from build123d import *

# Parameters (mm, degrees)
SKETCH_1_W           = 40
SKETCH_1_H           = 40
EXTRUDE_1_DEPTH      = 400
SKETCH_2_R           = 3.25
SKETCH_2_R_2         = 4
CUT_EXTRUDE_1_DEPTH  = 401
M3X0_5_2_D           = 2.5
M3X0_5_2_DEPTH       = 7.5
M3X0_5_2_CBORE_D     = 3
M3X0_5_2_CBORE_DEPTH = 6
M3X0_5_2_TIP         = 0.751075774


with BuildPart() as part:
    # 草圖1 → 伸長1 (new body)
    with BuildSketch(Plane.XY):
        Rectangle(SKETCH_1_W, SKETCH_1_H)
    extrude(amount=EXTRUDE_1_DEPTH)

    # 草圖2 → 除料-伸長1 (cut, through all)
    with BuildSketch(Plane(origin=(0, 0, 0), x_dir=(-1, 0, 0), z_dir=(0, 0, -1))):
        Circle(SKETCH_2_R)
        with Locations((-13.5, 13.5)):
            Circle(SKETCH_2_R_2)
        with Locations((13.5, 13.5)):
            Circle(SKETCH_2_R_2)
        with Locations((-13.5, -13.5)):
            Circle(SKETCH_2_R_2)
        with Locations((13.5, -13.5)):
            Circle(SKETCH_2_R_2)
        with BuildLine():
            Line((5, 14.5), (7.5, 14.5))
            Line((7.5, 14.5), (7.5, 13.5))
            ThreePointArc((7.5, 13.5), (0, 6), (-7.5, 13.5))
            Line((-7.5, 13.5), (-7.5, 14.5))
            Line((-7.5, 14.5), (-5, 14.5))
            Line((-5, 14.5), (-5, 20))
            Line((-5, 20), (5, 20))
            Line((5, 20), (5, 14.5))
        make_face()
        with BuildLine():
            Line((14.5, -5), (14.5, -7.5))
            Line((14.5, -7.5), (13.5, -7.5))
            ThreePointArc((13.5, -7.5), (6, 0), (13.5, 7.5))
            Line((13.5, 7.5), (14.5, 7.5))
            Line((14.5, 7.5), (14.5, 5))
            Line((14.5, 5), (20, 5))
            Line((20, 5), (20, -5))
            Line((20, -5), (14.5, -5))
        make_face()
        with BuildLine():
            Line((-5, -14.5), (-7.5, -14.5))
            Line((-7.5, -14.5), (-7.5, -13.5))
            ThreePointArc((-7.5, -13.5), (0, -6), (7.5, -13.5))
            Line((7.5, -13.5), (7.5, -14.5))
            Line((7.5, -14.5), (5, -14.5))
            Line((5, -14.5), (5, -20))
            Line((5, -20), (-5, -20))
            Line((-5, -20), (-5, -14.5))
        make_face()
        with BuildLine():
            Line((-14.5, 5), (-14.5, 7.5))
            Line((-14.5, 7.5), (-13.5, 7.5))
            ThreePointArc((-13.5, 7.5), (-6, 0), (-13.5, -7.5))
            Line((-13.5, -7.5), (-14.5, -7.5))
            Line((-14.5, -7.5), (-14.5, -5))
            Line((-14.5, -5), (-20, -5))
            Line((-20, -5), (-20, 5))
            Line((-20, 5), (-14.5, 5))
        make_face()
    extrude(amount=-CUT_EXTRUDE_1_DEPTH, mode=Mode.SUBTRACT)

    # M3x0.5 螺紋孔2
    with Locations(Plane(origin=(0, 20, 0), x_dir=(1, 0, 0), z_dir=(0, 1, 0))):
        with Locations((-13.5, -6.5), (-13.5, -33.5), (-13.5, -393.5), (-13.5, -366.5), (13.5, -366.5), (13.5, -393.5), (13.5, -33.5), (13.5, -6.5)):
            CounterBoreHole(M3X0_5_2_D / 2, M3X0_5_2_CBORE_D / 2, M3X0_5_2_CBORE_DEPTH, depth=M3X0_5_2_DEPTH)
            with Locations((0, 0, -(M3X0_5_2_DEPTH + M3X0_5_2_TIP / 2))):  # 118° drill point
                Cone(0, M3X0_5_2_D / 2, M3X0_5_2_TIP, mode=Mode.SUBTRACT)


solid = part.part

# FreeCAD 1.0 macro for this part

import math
import FreeCAD as App
import Part
import Sketcher

V = App.Vector
Q = App.Units.Quantity

doc = App.newDocument("Part")
params = doc.addObject("Spreadsheet::Sheet", "Params")
for row, (alias, value) in enumerate([
    ("sketch1_width", "40 mm"),
    ("pad1_length", "400 mm"),
    ("sketch2_diameter", "8 mm"),
    ("sketch2_diameter2", "6.5 mm"),
    ("sketch2_radius", "7.5 mm"),
    ("sketch2_width", "10 mm"),
    ("sketch2_width2", "1 mm"),
    ("sketch3_diameter", "2.5 mm"),
    ("hole_diameter", "2.5 mm"),
    ("hole_depth", "7.5 mm"),
    ("hole_cbore_diameter", "3 mm"),
    ("hole_cbore_depth", "6 mm"),
], start=1):
    params.set(f"A{row}", alias)
    params.set(f"B{row}", "=" + value)
    params.setAlias(f"B{row}", alias)

body = doc.addObject("PartDesign::Body", "Body")

# Sketch on XY plane
sketch1 = body.newObject("Sketcher::SketchObject", "Sketch")
sketch1.AttachmentSupport = (doc.getObject("XY_Plane"), [""])
sketch1.MapMode = "FlatFace"
sketch1.addGeometry([
    Part.LineSegment(V(-20, 20, 0), V(-20, -20, 0)),
    Part.LineSegment(V(-20, -20, 0), V(20, -20, 0)),
    Part.LineSegment(V(20, -20, 0), V(20, 20, 0)),
    Part.LineSegment(V(20, 20, 0), V(-20, 20, 0)),
], False)
sketch1.addConstraint([
    Sketcher.Constraint("Coincident", 0, 2, 1, 1),
    Sketcher.Constraint("Coincident", 1, 2, 2, 1),
    Sketcher.Constraint("Coincident", 2, 2, 3, 1),
    Sketcher.Constraint("Coincident", 3, 2, 0, 1),
    Sketcher.Constraint("Vertical", 0),
    Sketcher.Constraint("Horizontal", 1),
    Sketcher.Constraint("Vertical", 2),
    Sketcher.Constraint("Horizontal", 3),
    Sketcher.Constraint("Symmetric", 0, 2, 2, 2, -1, 1),
    Sketcher.Constraint("Equal", 3, 0),
    Sketcher.Constraint("DistanceX", 1, 1, 1, 2, Q("40 mm")),
])
sketch1.setExpression("Constraints[10]", "Params.sketch1_width")
pad1 = body.newObject("PartDesign::Pad", "Pad")
pad1.Profile = sketch1
pad1.setExpression("Length", "Params.pad1_length")

# Sketch on XY plane
sketch2 = body.newObject("Sketcher::SketchObject", "Sketch001")
sketch2.AttachmentSupport = (doc.getObject("XY_Plane"), [""])
sketch2.MapMode = "FlatFace"
sketch2.addGeometry([
    Part.Circle(V(0, 0, 0), V(0, 0, 1), 3.25),  # 0
    Part.Circle(V(13.5, 13.5, 0), V(0, 0, 1), 4),  # 1
    Part.Circle(V(-13.5, 13.5, 0), V(0, 0, 1), 4),  # 2
    Part.Circle(V(13.5, -13.5, 0), V(0, 0, 1), 4),  # 3
    Part.Circle(V(-13.5, -13.5, 0), V(0, 0, 1), 4),  # 4
    Part.LineSegment(V(-7.5, 14.5, 0), V(-5, 14.5, 0)),  # 5
    Part.LineSegment(V(-5, 14.5, 0), V(-5, 20, 0)),  # 6
    Part.LineSegment(V(-5, 20, 0), V(5, 20, 0)),  # 7
    Part.LineSegment(V(5, 20, 0), V(5, 14.5, 0)),  # 8
    Part.LineSegment(V(5, 14.5, 0), V(7.5, 14.5, 0)),  # 9
    Part.LineSegment(V(7.5, 14.5, 0), V(7.5, 13.5, 0)),  # 10
    Part.ArcOfCircle(Part.Circle(V(0, 13.5, 0), V(0, 0, 1), 7.5), math.radians(180), math.radians(360)),  # 11
    Part.LineSegment(V(-7.5, 13.5, 0), V(-7.5, 14.5, 0)),  # 12
    Part.LineSegment(V(-14.5, -7.5, 0), V(-14.5, -5, 0)),  # 13
    Part.LineSegment(V(-14.5, -5, 0), V(-20, -5, 0)),  # 14
    Part.LineSegment(V(-20, -5, 0), V(-20, 5, 0)),  # 15
    Part.LineSegment(V(-20, 5, 0), V(-14.5, 5, 0)),  # 16
    Part.LineSegment(V(-14.5, 5, 0), V(-14.5, 7.5, 0)),  # 17
    Part.LineSegment(V(-14.5, 7.5, 0), V(-13.5, 7.5, 0)),  # 18
    Part.ArcOfCircle(Part.Circle(V(-13.5, 0, 0), V(0, 0, 1), 7.5), math.radians(-90), math.radians(90)),  # 19
    Part.LineSegment(V(-13.5, -7.5, 0), V(-14.5, -7.5, 0)),  # 20
    Part.LineSegment(V(7.5, -14.5, 0), V(5, -14.5, 0)),  # 21
    Part.LineSegment(V(5, -14.5, 0), V(5, -20, 0)),  # 22
    Part.LineSegment(V(5, -20, 0), V(-5, -20, 0)),  # 23
    Part.LineSegment(V(-5, -20, 0), V(-5, -14.5, 0)),  # 24
    Part.LineSegment(V(-5, -14.5, 0), V(-7.5, -14.5, 0)),  # 25
    Part.LineSegment(V(-7.5, -14.5, 0), V(-7.5, -13.5, 0)),  # 26
    Part.ArcOfCircle(Part.Circle(V(0, -13.5, 0), V(0, 0, 1), 7.5), math.radians(0), math.radians(180)),  # 27
    Part.LineSegment(V(7.5, -13.5, 0), V(7.5, -14.5, 0)),  # 28
    Part.LineSegment(V(14.5, 7.5, 0), V(14.5, 5, 0)),  # 29
    Part.LineSegment(V(14.5, 5, 0), V(20, 5, 0)),  # 30
    Part.LineSegment(V(20, 5, 0), V(20, -5, 0)),  # 31
    Part.LineSegment(V(20, -5, 0), V(14.5, -5, 0)),  # 32
    Part.LineSegment(V(14.5, -5, 0), V(14.5, -7.5, 0)),  # 33
    Part.LineSegment(V(14.5, -7.5, 0), V(13.5, -7.5, 0)),  # 34
    Part.ArcOfCircle(Part.Circle(V(13.5, 0, 0), V(0, 0, 1), 7.5), math.radians(90), math.radians(270)),  # 35
    Part.LineSegment(V(13.5, 7.5, 0), V(14.5, 7.5, 0)),  # 36
], False)
sketch2.addConstraint([
    Sketcher.Constraint("Coincident", 5, 2, 6, 1),
    Sketcher.Constraint("Coincident", 6, 2, 7, 1),
    Sketcher.Constraint("Coincident", 7, 2, 8, 1),
    Sketcher.Constraint("Coincident", 8, 2, 9, 1),
    Sketcher.Constraint("Coincident", 9, 2, 10, 1),
    Sketcher.Constraint("Tangent", 10, 2, 11, 2),
    Sketcher.Constraint("Tangent", 11, 1, 12, 1),
    Sketcher.Constraint("Coincident", 12, 2, 5, 1),
    Sketcher.Constraint("Coincident", 13, 2, 14, 1),
    Sketcher.Constraint("Coincident", 14, 2, 15, 1),
    Sketcher.Constraint("Coincident", 15, 2, 16, 1),
    Sketcher.Constraint("Coincident", 16, 2, 17, 1),
    Sketcher.Constraint("Coincident", 17, 2, 18, 1),
    Sketcher.Constraint("Tangent", 18, 2, 19, 2),
    Sketcher.Constraint("Tangent", 19, 1, 20, 1),
    Sketcher.Constraint("Coincident", 20, 2, 13, 1),
    Sketcher.Constraint("Coincident", 21, 2, 22, 1),
    Sketcher.Constraint("Coincident", 22, 2, 23, 1),
    Sketcher.Constraint("Coincident", 23, 2, 24, 1),
    Sketcher.Constraint("Coincident", 24, 2, 25, 1),
    Sketcher.Constraint("Coincident", 25, 2, 26, 1),
    Sketcher.Constraint("Tangent", 26, 2, 27, 2),
    Sketcher.Constraint("Tangent", 27, 1, 28, 1),
    Sketcher.Constraint("Coincident", 28, 2, 21, 1),
    Sketcher.Constraint("Coincident", 29, 2, 30, 1),
    Sketcher.Constraint("Coincident", 30, 2, 31, 1),
    Sketcher.Constraint("Coincident", 31, 2, 32, 1),
    Sketcher.Constraint("Coincident", 32, 2, 33, 1),
    Sketcher.Constraint("Coincident", 33, 2, 34, 1),
    Sketcher.Constraint("Tangent", 34, 2, 35, 2),
    Sketcher.Constraint("Tangent", 35, 1, 36, 1),
    Sketcher.Constraint("Coincident", 36, 2, 29, 1),
    Sketcher.Constraint("Horizontal", 5),
    Sketcher.Constraint("Vertical", 6),
    Sketcher.Constraint("Horizontal", 7),
    Sketcher.Constraint("Vertical", 8),
    Sketcher.Constraint("Horizontal", 9),
    Sketcher.Constraint("Vertical", 10),
    Sketcher.Constraint("Vertical", 12),
    Sketcher.Constraint("Vertical", 13),
    Sketcher.Constraint("Horizontal", 14),
    Sketcher.Constraint("Vertical", 15),
    Sketcher.Constraint("Horizontal", 16),
    Sketcher.Constraint("Vertical", 17),
    Sketcher.Constraint("Horizontal", 18),
    Sketcher.Constraint("Horizontal", 20),
    Sketcher.Constraint("Horizontal", 21),
    Sketcher.Constraint("Vertical", 22),
    Sketcher.Constraint("Horizontal", 23),
    Sketcher.Constraint("Vertical", 24),
    Sketcher.Constraint("Horizontal", 25),
    Sketcher.Constraint("Vertical", 26),
    Sketcher.Constraint("Vertical", 28),
    Sketcher.Constraint("Vertical", 29),
    Sketcher.Constraint("Horizontal", 30),
    Sketcher.Constraint("Vertical", 31),
    Sketcher.Constraint("Horizontal", 32),
    Sketcher.Constraint("Vertical", 33),
    Sketcher.Constraint("Horizontal", 34),
    Sketcher.Constraint("Horizontal", 36),
    Sketcher.Constraint("Coincident", 0, 3, -1, 1),
    Sketcher.Constraint("Equal", 1, 2),
    Sketcher.Constraint("Equal", 2, 3),
    Sketcher.Constraint("Equal", 3, 4),
    Sketcher.Constraint("Equal", 11, 19),
    Sketcher.Constraint("Equal", 19, 27),
    Sketcher.Constraint("Equal", 27, 35),
    Sketcher.Constraint("Symmetric", 2, 3, 3, 3, -1, 1),
    Sketcher.Constraint("Symmetric", 1, 3, 4, 3, -1, 1),
    Sketcher.Constraint("Symmetric", 11, 3, 27, 3, -1, 1),
    Sketcher.Constraint("Symmetric", 19, 3, 35, 3, -1, 1),
    Sketcher.Constraint("Symmetric", 5, 2, 21, 2, -1, 1),
    Sketcher.Constraint("Symmetric", 7, 2, 23, 2, -1, 1),
    Sketcher.Constraint("Symmetric", 13, 2, 29, 2, -1, 1),
    Sketcher.Constraint("Symmetric", 15, 2, 31, 2, -1, 1),
    Sketcher.Constraint("Symmetric", 1, 3, 2, 3, -2),
    Sketcher.Constraint("Symmetric", 5, 2, 8, 2, -2),
    Sketcher.Constraint("Symmetric", 25, 2, 28, 2, -2),
    Sketcher.Constraint("Symmetric", 16, 2, 29, 2, -2),
    Sketcher.Constraint("Symmetric", 20, 2, 33, 2, -2),
    Sketcher.Constraint("Horizontal", 2, 3, 11, 3),
    Sketcher.Constraint("Vertical", 4, 3, 19, 3),
    Sketcher.Constraint("Equal", 32, 6),
    Sketcher.Constraint("Equal", 36, 10),
    Sketcher.Constraint("Equal", 25, 13),
    Sketcher.Constraint("Diameter", 1, Q("8 mm")),
    Sketcher.Constraint("Diameter", 0, Q("6.5 mm")),
    Sketcher.Constraint("Radius", 11, Q("7.5 mm")),
    Sketcher.Constraint("DistanceX", 7, 1, 7, 2, Q("10 mm")),
    Sketcher.Constraint("DistanceX", 18, 1, 18, 2, Q("1 mm")),
    Sketcher.Constraint("DistanceX", 14, 2, 14, 1, Q("5.5 mm")),
    Sketcher.Constraint("DistanceY", -1, 1, 6, 2, Q("20 mm")),
    Sketcher.Constraint("DistanceX", 14, 2, -1, 1, Q("20 mm")),
])
sketch2.setExpression("Constraints[85]", "Params.sketch2_diameter")
sketch2.setExpression("Constraints[86]", "Params.sketch2_diameter2")
sketch2.setExpression("Constraints[87]", "Params.sketch2_radius")
sketch2.setExpression("Constraints[88]", "Params.sketch2_width")
sketch2.setExpression("Constraints[89]", "Params.sketch2_width2")
pocket1 = body.newObject("PartDesign::Pocket", "Pocket")
pocket1.Profile = sketch2
pocket1.Type = "ThroughAll"
pocket1.Reversed = True

# Sketch on XZ plane
sketch3 = body.newObject("Sketcher::SketchObject", "Sketch002")
sketch3.AttachmentSupport = (doc.getObject("XZ_Plane"), [""])
sketch3.MapMode = "FlatFace"
sketch3.AttachmentOffset = App.Placement(V(0, 0, -20), App.Rotation())
sketch3.addGeometry([
    Part.Circle(V(-13.5, 6.5, 0), V(0, 0, 1), 1.25),  # 0
    Part.Circle(V(-13.5, 33.5, 0), V(0, 0, 1), 1.25),  # 1
    Part.Circle(V(-13.5, 393.5, 0), V(0, 0, 1), 1.25),  # 2
    Part.Circle(V(-13.5, 366.5, 0), V(0, 0, 1), 1.25),  # 3
    Part.Circle(V(13.5, 366.5, 0), V(0, 0, 1), 1.25),  # 4
    Part.Circle(V(13.5, 393.5, 0), V(0, 0, 1), 1.25),  # 5
    Part.Circle(V(13.5, 33.5, 0), V(0, 0, 1), 1.25),  # 6
    Part.Circle(V(13.5, 6.5, 0), V(0, 0, 1), 1.25),  # 7
], False)
sketch3.addConstraint([
    Sketcher.Constraint("Equal", 0, 1),
    Sketcher.Constraint("Equal", 1, 2),
    Sketcher.Constraint("Equal", 2, 3),
    Sketcher.Constraint("Equal", 3, 4),
    Sketcher.Constraint("Equal", 4, 5),
    Sketcher.Constraint("Equal", 5, 6),
    Sketcher.Constraint("Equal", 6, 7),
    Sketcher.Constraint("Symmetric", 3, 3, 4, 3, -2),
    Sketcher.Constraint("Symmetric", 2, 3, 5, 3, -2),
    Sketcher.Constraint("Symmetric", 1, 3, 6, 3, -2),
    Sketcher.Constraint("Symmetric", 0, 3, 7, 3, -2),
    Sketcher.Constraint("Vertical", 0, 3, 1, 3),
    Sketcher.Constraint("Vertical", 1, 3, 2, 3),
    Sketcher.Constraint("Vertical", 2, 3, 3, 3),
    Sketcher.Constraint("Diameter", 0, Q("2.5 mm")),
    Sketcher.Constraint("DistanceY", 0, 3, 1, 3, Q("27 mm")),
    Sketcher.Constraint("DistanceY", 1, 3, 2, 3, Q("360 mm")),
    Sketcher.Constraint("DistanceY", 3, 3, 2, 3, Q("27 mm")),
    Sketcher.Constraint("DistanceX", 3, 3, 4, 3, Q("27 mm")),
    Sketcher.Constraint("DistanceY", -1, 1, 0, 3, Q("6.5 mm")),
])
sketch3.setExpression("Constraints[14]", "Params.sketch3_diameter")
doc.recompute()
hole = body.newObject("PartDesign::Hole", "Hole")
hole.Profile = sketch3
hole.ThreadType = "None"
hole.setExpression("Diameter", "Params.hole_diameter")
hole.DepthType = "Dimension"
hole.setExpression("Depth", "Params.hole_depth")
hole.DrillPoint = "Angled"
hole.DrillPointAngle = 118
hole.HoleCutType = "Counterbore"
hole.setExpression("HoleCutDiameter", "Params.hole_cbore_diameter")
hole.setExpression("HoleCutDepth", "Params.hole_cbore_depth")
hole.Reversed = True

doc.recompute()
